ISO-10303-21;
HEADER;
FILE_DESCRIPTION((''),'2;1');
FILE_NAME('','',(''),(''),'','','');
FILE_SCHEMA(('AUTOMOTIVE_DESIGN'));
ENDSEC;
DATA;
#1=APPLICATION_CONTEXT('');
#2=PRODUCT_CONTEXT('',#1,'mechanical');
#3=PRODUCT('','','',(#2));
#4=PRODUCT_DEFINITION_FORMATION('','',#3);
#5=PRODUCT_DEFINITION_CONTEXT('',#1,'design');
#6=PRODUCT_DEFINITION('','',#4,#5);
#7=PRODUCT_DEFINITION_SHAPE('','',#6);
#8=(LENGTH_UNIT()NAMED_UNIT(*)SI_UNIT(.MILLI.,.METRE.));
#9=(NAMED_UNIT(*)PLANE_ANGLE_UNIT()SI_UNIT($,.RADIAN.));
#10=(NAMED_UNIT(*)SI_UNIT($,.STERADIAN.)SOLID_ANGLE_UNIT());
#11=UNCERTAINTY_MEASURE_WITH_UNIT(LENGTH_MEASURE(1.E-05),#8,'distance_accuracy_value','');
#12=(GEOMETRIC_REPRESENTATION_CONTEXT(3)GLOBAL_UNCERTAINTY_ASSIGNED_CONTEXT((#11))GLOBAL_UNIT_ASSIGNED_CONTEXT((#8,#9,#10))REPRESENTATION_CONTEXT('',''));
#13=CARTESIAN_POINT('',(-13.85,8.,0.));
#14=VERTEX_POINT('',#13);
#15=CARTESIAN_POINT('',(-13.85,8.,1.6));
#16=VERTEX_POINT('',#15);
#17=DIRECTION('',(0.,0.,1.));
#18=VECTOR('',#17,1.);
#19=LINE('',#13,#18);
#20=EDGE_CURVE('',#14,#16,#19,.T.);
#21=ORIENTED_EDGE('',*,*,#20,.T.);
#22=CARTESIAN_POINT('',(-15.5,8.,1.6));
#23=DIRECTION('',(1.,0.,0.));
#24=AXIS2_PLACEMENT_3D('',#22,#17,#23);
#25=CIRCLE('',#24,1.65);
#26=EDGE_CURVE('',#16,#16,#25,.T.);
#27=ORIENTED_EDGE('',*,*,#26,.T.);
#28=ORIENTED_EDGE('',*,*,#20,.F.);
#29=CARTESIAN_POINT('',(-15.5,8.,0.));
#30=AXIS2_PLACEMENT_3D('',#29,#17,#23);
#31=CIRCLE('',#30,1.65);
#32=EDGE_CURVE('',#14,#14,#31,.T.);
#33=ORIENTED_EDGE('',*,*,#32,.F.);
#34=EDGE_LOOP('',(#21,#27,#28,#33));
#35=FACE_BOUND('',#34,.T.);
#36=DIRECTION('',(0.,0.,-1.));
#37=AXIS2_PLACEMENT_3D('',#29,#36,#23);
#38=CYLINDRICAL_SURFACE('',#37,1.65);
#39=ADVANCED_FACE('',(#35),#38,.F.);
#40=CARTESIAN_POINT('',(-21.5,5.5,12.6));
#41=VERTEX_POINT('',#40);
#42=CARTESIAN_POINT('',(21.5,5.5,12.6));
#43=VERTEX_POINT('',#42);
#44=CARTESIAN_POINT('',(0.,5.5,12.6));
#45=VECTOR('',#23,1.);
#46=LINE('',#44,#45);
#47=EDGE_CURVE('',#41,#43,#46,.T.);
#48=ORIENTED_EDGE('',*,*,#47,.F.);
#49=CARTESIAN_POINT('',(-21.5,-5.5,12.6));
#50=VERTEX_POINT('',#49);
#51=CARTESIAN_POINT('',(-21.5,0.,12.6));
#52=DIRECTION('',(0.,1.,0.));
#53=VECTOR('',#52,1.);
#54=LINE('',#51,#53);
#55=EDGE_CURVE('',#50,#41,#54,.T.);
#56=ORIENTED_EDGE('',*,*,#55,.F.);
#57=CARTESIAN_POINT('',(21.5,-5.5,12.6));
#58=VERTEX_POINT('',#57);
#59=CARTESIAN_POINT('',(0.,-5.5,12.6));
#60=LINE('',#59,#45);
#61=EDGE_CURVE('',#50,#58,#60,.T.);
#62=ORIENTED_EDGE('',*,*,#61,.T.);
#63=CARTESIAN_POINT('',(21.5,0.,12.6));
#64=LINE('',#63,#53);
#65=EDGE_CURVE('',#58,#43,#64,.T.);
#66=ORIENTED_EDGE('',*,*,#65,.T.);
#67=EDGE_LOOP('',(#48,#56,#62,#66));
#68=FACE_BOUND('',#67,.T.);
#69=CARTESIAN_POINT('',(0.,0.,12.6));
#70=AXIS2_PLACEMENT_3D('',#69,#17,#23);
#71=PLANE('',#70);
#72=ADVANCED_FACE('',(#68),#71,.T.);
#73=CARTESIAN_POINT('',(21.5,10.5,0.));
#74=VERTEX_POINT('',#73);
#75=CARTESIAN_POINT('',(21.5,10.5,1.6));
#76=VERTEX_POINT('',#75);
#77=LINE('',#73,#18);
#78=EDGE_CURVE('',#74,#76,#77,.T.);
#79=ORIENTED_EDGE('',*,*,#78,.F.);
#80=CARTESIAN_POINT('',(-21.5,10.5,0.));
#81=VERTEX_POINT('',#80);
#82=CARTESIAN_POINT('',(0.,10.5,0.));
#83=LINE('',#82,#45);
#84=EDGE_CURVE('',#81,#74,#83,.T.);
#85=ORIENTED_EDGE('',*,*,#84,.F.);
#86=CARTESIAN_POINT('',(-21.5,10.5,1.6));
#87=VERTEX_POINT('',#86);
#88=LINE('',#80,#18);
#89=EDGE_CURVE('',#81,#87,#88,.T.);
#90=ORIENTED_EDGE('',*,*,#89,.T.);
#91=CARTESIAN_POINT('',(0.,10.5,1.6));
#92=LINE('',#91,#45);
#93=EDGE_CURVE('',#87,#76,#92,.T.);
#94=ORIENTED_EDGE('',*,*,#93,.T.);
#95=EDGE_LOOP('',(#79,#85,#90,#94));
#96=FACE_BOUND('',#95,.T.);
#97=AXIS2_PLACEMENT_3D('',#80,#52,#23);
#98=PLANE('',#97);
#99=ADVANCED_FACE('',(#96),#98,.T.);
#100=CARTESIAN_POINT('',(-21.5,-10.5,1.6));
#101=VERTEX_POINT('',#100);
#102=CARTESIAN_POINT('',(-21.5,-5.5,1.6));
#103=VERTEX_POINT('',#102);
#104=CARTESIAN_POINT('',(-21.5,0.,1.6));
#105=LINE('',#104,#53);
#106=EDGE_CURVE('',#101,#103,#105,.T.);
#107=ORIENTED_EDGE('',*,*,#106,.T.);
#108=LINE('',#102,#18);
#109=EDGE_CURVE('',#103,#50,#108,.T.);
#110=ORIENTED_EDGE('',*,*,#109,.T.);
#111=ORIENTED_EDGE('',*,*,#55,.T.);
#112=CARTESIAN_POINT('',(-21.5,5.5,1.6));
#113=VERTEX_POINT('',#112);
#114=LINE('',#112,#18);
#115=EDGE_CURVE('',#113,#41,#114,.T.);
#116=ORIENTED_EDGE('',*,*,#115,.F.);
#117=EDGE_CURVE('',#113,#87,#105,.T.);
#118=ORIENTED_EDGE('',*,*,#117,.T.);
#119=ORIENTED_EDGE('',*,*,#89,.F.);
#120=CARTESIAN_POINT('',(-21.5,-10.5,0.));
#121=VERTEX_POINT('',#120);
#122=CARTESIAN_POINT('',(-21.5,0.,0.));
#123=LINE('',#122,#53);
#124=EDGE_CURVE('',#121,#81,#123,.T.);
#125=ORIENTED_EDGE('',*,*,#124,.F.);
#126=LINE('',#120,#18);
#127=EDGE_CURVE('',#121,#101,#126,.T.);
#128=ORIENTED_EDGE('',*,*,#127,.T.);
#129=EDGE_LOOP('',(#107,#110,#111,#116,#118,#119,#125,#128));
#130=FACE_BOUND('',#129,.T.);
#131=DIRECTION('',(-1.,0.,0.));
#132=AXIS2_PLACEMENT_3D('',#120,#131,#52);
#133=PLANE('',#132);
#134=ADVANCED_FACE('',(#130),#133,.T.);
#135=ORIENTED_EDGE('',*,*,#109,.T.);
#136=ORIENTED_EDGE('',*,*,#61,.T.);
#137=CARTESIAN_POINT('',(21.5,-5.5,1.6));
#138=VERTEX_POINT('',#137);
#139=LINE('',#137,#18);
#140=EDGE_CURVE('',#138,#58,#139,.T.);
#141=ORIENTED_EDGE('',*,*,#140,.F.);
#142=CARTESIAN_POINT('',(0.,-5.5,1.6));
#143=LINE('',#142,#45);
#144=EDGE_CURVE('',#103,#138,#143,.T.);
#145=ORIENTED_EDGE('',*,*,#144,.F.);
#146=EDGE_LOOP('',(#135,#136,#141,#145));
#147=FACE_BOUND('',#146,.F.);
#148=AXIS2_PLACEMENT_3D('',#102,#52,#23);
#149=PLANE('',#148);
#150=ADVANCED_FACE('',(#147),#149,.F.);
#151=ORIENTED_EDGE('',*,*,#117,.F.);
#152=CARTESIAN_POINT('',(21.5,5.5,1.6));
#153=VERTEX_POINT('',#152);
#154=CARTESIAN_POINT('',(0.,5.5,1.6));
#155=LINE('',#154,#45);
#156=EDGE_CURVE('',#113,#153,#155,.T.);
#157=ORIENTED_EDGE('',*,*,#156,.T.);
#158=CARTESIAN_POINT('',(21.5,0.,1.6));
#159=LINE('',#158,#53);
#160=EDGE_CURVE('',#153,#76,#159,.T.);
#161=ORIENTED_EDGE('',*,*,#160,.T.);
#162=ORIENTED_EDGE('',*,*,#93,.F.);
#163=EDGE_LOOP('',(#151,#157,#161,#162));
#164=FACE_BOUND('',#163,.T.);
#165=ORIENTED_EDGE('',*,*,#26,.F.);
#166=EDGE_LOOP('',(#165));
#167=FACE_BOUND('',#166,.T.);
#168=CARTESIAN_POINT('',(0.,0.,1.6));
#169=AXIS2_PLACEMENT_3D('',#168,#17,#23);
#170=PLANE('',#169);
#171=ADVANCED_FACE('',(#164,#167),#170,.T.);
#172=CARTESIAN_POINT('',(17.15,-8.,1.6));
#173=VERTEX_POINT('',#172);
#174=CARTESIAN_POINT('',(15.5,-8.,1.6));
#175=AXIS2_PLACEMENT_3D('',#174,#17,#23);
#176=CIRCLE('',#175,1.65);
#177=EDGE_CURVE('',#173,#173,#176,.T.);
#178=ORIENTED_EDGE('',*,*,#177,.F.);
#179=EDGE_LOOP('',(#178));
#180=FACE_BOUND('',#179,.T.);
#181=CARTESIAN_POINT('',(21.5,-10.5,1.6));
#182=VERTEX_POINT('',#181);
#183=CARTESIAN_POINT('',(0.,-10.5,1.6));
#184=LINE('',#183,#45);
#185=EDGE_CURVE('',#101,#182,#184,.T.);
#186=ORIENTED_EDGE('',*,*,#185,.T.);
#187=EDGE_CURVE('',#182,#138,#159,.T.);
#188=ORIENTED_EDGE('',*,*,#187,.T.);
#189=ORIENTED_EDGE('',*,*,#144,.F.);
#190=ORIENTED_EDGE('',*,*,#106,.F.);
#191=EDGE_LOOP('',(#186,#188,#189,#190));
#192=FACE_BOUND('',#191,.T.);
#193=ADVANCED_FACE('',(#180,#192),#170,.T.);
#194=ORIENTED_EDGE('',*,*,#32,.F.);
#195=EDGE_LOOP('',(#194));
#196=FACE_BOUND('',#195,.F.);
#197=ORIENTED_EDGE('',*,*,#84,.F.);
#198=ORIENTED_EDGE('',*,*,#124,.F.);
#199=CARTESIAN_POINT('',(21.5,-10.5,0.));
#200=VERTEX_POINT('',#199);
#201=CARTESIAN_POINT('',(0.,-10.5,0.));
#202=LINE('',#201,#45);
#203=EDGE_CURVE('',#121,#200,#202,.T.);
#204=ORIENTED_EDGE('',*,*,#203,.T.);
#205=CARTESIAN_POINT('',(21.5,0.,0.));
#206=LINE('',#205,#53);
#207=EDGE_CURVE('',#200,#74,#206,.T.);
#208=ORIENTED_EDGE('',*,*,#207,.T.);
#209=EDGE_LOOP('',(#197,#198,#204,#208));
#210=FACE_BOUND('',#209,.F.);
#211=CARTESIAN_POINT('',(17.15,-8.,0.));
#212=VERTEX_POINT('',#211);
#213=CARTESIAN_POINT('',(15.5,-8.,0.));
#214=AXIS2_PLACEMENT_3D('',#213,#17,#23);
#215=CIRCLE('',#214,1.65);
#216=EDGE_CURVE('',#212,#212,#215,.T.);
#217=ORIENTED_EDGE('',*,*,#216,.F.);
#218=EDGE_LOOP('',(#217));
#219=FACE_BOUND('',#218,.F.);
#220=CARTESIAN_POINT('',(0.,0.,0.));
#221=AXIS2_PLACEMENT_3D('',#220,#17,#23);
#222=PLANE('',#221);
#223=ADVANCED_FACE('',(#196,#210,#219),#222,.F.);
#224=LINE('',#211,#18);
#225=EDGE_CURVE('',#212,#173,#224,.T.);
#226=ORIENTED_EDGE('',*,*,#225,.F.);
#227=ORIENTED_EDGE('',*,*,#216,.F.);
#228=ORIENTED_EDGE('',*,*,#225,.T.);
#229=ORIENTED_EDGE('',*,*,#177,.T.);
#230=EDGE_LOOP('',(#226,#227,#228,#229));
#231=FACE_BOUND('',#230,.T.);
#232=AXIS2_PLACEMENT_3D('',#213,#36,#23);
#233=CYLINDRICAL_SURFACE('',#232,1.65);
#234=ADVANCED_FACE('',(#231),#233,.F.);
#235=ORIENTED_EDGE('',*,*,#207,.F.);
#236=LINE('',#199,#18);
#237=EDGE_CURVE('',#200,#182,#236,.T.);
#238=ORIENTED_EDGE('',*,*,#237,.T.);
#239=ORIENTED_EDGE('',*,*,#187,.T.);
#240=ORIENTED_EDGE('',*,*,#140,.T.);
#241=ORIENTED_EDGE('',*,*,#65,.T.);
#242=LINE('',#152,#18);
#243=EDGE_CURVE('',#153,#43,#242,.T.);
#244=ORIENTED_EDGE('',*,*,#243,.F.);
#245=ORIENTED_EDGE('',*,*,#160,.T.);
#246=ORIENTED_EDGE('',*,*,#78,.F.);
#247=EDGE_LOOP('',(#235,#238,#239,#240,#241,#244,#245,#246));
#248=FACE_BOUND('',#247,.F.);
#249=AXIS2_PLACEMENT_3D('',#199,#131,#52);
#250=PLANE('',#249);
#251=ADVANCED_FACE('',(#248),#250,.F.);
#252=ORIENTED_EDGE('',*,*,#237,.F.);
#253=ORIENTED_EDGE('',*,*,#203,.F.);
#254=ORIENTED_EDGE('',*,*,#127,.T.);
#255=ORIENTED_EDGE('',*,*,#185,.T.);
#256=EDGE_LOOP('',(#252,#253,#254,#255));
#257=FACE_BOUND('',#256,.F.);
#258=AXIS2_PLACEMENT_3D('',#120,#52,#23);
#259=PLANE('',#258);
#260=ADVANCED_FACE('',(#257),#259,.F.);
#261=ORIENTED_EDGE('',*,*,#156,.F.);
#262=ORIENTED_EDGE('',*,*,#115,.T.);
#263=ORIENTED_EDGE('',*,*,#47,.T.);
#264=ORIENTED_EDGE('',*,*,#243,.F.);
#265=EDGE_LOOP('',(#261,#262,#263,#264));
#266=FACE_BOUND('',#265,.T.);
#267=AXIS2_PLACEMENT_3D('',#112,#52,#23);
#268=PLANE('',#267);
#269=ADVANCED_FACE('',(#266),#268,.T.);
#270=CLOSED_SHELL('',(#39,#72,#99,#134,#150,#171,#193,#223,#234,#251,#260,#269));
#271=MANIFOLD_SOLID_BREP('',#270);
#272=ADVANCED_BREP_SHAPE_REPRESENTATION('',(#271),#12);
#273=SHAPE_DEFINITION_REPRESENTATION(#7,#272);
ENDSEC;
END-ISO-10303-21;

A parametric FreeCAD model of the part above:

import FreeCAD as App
import Part
import Sketcher
from FreeCAD import Vector

doc = App.newDocument("Part")
body = doc.addObject("PartDesign::Body", "Body")

sketch1 = body.newObject("Sketcher::SketchObject", "Sketch")
sketch1.AttachmentSupport = (doc.getObject("XY_Plane"), [""])
sketch1.MapMode = "FlatFace"
sketch1.addGeometry(Part.LineSegment(Vector(-21.5, 10.5, 0), Vector(-21.5, -10.5, 0)), False)
sketch1.addGeometry(Part.LineSegment(Vector(-21.5, -10.5, 0), Vector(21.5, -10.5, 0)), False)
sketch1.addGeometry(Part.LineSegment(Vector(21.5, -10.5, 0), Vector(21.5, 10.5, 0)), False)
sketch1.addGeometry(Part.LineSegment(Vector(21.5, 10.5, 0), Vector(-21.5, 10.5, 0)), False)
sketch1.addGeometry(Part.Circle(Vector(15.5, -8, 0), Vector(0, 0, 1), 1.6), False)
sketch1.addGeometry(Part.Circle(Vector(-15.5, 8, 0), Vector(0, 0, 1), 1.6), False)
sketch1.addConstraint(Sketcher.Constraint("Coincident", 0, 2, 1, 1))
sketch1.addConstraint(Sketcher.Constraint("Coincident", 1, 2, 2, 1))
sketch1.addConstraint(Sketcher.Constraint("Coincident", 2, 2, 3, 1))
sketch1.addConstraint(Sketcher.Constraint("Coincident", 3, 2, 0, 1))
sketch1.addConstraint(Sketcher.Constraint("Vertical", 0))
sketch1.addConstraint(Sketcher.Constraint("Horizontal", 1))
sketch1.addConstraint(Sketcher.Constraint("Vertical", 2))
sketch1.addConstraint(Sketcher.Constraint("Horizontal", 3))
sketch1.addConstraint(Sketcher.Constraint("Equal", 4, 5))
sketch1.addConstraint(Sketcher.Constraint("Symmetric", 4, 3, 5, 3, -1, 1))
sketch1.addConstraint(Sketcher.Constraint("Symmetric", 0, 2, 2, 2, -1, 1))
sketch1.addConstraint(Sketcher.Constraint("Diameter", 4, 3.3))
sketch1.addConstraint(Sketcher.Constraint("DistanceX", 1, 1, 1, 2, 43.0))
sketch1.addConstraint(Sketcher.Constraint("DistanceY", 0, 2, 0, 1, 21.0))
sketch1.addConstraint(Sketcher.Constraint("DistanceY", 4, 3, -1, 1, 8.0))
sketch1.addConstraint(Sketcher.Constraint("DistanceX", 5, 3, 4, 3, 31.0))
pad1 = body.newObject("PartDesign::Pad", "Pad")
pad1.Profile = sketch1
pad1.Length = 1.6

sketch2 = body.newObject("Sketcher::SketchObject", "Sketch001")
sketch2.AttachmentSupport = (doc.getObject("XY_Plane"), [""])
sketch2.MapMode = "FlatFace"
sketch2.AttachmentOffset = App.Placement(Vector(0, 0, 1.6), App.Rotation())
sketch2.addGeometry(Part.LineSegment(Vector(-22, 6, 0), Vector(-22, -6, 0)), False)
sketch2.addGeometry(Part.LineSegment(Vector(-22, -6, 0), Vector(22, -6, 0)), False)
sketch2.addGeometry(Part.LineSegment(Vector(22, -6, 0), Vector(22, 6, 0)), False)
sketch2.addGeometry(Part.LineSegment(Vector(22, 6, 0), Vector(-22, 6, 0)), False)
sketch2.addConstraint(Sketcher.Constraint("Coincident", 0, 2, 1, 1))
sketch2.addConstraint(Sketcher.Constraint("Coincident", 1, 2, 2, 1))
sketch2.addConstraint(Sketcher.Constraint("Coincident", 2, 2, 3, 1))
sketch2.addConstraint(Sketcher.Constraint("Coincident", 3, 2, 0, 1))
sketch2.addConstraint(Sketcher.Constraint("Vertical", 0))
sketch2.addConstraint(Sketcher.Constraint("Horizontal", 1))
sketch2.addConstraint(Sketcher.Constraint("Vertical", 2))
sketch2.addConstraint(Sketcher.Constraint("Horizontal", 3))
sketch2.addConstraint(Sketcher.Constraint("Symmetric", 0, 2, 2, 2, -1, 1))
sketch2.addConstraint(Sketcher.Constraint("DistanceX", 1, 1, 1, 2, 43.0))
sketch2.addConstraint(Sketcher.Constraint("DistanceY", 0, 2, 0, 1, 11.0))
pad2 = body.newObject("PartDesign::Pad", "Pad001")
pad2.Profile = sketch2
pad2.Length = 11

doc.recompute()
